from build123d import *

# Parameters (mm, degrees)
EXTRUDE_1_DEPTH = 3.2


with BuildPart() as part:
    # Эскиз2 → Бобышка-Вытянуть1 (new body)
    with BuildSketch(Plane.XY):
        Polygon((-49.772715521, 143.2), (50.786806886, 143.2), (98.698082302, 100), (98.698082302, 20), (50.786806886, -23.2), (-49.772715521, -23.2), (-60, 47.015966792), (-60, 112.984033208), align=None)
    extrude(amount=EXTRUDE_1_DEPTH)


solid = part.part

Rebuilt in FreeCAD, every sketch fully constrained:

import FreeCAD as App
import Part
import Sketcher

V = App.Vector


def add_polygon(sketch, points):
    """Adds a closed chain of lines whose ends are joined by coincident constraints."""
    first, n = sketch.GeometryCount, len(points)
    for a, b in zip(points, points[1:] + points[:1]):
        sketch.addGeometry(Part.LineSegment(App.Vector(*a, 0), App.Vector(*b, 0)), False)
    for i in range(n):
        sketch.addConstraint(Sketcher.Constraint("Coincident", first + i, 2, first + (i + 1) % n, 1))

doc = App.newDocument("Part")
body = doc.addObject("PartDesign::Body", "Body")

# Sketch on XY plane
sketch1 = doc.addObject("Sketcher::SketchObject", "Sketch")
body.addObject(sketch1)
sketch1.AttachmentSupport = (doc.XY_Plane, [""])
sketch1.MapMode = "FlatFace"
add_polygon(sketch1, [(51, 143), (-50, 143), (-60, 113), (-60, 47), (-50, -23), (51, -23), (99, 20), (99, 100)])  # lines 0-7
sketch1.addConstraint([
    Sketcher.Constraint("Horizontal", 0),
    Sketcher.Constraint("Vertical", 2),
    Sketcher.Constraint("Horizontal", 4),
    Sketcher.Constraint("Vertical", 6),
    Sketcher.Constraint("Vertical", 0, 2, 3, 2),
    Sketcher.Constraint("Vertical", 4, 2, 7, 2),
    Sketcher.Constraint("Equal", 5, 7),
    Sketcher.Constraint("DistanceY", 6, 1, 6, 2, 80.0),
    Sketcher.Constraint("DistanceX", 1, 2, -1, 1, 60.0),
    Sketcher.Constraint("DistanceY", -1, 1, 5, 2, 20.0),
    Sketcher.Constraint("DistanceY", -1, 1, 0, 2, 143.2),
    Sketcher.Constraint("DistanceX", 0, 2, 0, 1, 100.559522),
    Sketcher.Constraint("DistanceY", 2, 2, 2, 1, 65.968066),
    Sketcher.Constraint("Distance", 1, 31.899875),
    Sketcher.Constraint("Distance", 3, 70.956884),
    Sketcher.Constraint("Distance", 5, 64.511474),
])
pad1 = doc.addObject("PartDesign::Pad", "Pad")
body.addObject(pad1)
pad1.Profile = sketch1
pad1.Length = 3.2

doc.recompute()
